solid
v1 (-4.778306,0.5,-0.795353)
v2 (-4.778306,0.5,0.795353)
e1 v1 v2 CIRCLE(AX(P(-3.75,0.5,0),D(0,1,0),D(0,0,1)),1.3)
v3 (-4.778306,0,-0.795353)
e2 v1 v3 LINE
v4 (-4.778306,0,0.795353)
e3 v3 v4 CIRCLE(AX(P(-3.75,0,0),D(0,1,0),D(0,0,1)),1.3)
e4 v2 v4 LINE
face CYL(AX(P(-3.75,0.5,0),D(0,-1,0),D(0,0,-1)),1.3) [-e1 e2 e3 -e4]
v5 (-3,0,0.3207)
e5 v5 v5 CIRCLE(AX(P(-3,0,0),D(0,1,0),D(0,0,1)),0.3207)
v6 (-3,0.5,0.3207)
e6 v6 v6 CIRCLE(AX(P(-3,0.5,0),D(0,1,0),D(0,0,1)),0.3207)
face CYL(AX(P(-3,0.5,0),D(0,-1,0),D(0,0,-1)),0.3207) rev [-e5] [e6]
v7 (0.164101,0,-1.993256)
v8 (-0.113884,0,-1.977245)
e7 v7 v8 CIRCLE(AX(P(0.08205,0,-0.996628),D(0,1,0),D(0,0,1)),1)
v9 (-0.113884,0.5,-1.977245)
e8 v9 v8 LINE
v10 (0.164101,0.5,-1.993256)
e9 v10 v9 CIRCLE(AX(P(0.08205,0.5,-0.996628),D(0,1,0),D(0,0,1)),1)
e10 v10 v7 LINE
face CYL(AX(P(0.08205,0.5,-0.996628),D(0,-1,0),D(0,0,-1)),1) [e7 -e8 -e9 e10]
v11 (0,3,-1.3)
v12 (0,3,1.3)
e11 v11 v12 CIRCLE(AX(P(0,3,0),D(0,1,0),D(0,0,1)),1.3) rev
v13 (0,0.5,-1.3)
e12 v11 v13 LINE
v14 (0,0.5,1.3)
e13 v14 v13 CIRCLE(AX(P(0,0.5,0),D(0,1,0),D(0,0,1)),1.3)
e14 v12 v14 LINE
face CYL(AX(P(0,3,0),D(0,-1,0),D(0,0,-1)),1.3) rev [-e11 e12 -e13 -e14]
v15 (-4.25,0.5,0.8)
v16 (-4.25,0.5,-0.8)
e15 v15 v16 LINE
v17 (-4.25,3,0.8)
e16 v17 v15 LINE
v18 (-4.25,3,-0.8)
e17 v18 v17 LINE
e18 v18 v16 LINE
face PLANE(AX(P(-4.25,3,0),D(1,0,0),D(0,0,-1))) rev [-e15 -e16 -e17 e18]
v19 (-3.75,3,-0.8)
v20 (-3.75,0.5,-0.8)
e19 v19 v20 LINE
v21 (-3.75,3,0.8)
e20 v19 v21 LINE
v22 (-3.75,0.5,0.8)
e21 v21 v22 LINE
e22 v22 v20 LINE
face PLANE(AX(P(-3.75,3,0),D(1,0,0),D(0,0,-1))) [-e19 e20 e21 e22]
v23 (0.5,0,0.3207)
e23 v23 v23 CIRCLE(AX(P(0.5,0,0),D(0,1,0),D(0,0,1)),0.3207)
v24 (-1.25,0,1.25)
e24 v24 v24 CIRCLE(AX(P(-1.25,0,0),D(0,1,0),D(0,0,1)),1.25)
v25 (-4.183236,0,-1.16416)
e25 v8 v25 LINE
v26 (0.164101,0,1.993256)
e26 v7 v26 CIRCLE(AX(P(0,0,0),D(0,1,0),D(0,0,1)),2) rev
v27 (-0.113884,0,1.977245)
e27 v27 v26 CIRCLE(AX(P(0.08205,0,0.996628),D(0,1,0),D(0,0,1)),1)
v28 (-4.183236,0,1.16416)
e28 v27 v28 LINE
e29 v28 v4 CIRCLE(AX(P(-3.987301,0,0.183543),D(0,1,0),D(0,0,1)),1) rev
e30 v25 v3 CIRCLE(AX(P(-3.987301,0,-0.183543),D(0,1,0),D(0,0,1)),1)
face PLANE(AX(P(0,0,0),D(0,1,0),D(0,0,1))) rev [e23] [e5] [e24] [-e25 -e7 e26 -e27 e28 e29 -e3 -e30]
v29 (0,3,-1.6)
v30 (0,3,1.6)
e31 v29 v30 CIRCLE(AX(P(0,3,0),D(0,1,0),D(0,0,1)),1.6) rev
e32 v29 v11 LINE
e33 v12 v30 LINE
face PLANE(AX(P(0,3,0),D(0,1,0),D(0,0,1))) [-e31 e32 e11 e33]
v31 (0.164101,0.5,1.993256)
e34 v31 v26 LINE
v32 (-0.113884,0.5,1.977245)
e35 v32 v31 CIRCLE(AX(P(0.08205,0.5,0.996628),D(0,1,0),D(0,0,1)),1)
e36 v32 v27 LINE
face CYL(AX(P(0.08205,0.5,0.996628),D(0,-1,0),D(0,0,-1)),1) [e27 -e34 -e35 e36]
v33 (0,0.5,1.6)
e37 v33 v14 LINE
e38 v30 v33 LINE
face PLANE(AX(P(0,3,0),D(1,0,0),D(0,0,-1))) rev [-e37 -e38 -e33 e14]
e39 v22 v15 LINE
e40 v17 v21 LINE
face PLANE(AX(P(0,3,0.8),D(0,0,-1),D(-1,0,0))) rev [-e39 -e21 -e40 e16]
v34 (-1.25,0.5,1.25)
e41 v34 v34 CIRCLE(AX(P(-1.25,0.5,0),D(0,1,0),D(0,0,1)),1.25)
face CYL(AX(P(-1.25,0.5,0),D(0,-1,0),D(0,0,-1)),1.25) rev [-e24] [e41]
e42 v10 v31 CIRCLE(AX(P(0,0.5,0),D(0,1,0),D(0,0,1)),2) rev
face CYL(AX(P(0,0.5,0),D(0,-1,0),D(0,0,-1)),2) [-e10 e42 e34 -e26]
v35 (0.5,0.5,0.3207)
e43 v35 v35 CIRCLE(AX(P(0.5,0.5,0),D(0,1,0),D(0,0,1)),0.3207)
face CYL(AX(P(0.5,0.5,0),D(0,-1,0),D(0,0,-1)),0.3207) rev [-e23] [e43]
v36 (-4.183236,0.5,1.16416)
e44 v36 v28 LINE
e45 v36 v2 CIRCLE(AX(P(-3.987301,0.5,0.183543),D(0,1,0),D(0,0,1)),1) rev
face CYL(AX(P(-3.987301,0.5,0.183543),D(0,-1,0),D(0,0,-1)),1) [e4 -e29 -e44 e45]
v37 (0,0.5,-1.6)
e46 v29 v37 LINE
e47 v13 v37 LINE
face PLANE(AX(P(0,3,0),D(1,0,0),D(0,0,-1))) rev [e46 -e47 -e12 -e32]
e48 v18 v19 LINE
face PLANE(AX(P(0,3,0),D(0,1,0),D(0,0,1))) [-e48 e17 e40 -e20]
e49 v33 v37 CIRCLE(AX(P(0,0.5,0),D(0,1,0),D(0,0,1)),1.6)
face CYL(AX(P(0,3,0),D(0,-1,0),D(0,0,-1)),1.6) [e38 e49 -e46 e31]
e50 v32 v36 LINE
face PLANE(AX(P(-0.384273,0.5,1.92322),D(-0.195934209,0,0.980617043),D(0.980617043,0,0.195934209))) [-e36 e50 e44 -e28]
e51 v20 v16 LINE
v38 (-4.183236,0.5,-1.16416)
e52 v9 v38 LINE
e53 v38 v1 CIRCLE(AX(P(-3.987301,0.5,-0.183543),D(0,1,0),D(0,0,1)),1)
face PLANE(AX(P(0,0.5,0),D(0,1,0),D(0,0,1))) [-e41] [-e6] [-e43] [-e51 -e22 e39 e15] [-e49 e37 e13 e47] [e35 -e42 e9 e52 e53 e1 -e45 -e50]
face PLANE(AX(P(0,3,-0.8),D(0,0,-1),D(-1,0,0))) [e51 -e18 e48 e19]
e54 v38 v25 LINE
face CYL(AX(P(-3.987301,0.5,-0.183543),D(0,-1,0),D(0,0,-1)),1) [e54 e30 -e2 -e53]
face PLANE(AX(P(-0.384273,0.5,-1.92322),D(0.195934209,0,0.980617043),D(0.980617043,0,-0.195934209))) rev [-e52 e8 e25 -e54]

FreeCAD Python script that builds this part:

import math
import FreeCAD as App
import Part
import Sketcher
from FreeCAD import Vector
Q = App.Units.Quantity

doc = App.newDocument("Part")
body = doc.addObject("PartDesign::Body", "Body")

sketch1 = body.newObject("Sketcher::SketchObject", "Sketch")
sketch1.AttachmentSupport = (doc.getObject("XZ_Plane"), [""])
sketch1.MapMode = "FlatFace"
sketch1.addGeometry(Part.ArcOfCircle(Part.Circle(Vector(0.08, -1, 0), Vector(0, 0, 1), 1), math.radians(-101.3), math.radians(-85.29)), False)
sketch1.addGeometry(Part.LineSegment(Vector(-0.11, -1.98, 0), Vector(-1.25, -1.75, 0)), False)
sketch1.addGeometry(Part.LineSegment(Vector(-1.25, -1.75, 0), Vector(-4.18, -1.16, 0)), False)
sketch1.addGeometry(Part.ArcOfCircle(Part.Circle(Vector(-3.99, -0.18, 0), Vector(0, 0, 1), 1), math.radians(-142), math.radians(-101)), False)
sketch1.addGeometry(Part.ArcOfCircle(Part.Circle(Vector(-3.75, 0, 0), Vector(0, 0, 1), 1.3), math.radians(142), math.radians(218)), False)
sketch1.addGeometry(Part.ArcOfCircle(Part.Circle(Vector(-3.99, 0.18, 0), Vector(0, 0, 1), 1), math.radians(101), math.radians(142)), False)
sketch1.addGeometry(Part.LineSegment(Vector(-4.18, 1.16, 0), Vector(-1.25, 1.75, 0)), False)
sketch1.addGeometry(Part.LineSegment(Vector(-1.25, 1.75, 0), Vector(-0.11, 1.98, 0)), False)
sketch1.addGeometry(Part.ArcOfCircle(Part.Circle(Vector(0.08, 1, 0), Vector(0, 0, 1), 1), math.radians(85.29), math.radians(101.3)), False)
sketch1.addGeometry(Part.ArcOfCircle(Part.Circle(Vector(0, 0, 0), Vector(0, 0, 1), 2), math.radians(-85), math.radians(85)), False)
sketch1.addGeometry(Part.ArcOfCircle(Part.Circle(Vector(-1.25, 0, 0), Vector(0, 0, 1), 1.25), math.radians(-90), math.radians(0)), False)
sketch1.addGeometry(Part.ArcOfCircle(Part.Circle(Vector(-1.25, 0, 0), Vector(0, 0, 1), 1.25), math.radians(0), math.radians(90)), False)
sketch1.addGeometry(Part.ArcOfCircle(Part.Circle(Vector(-1.25, 0, 0), Vector(0, 0, 1), 1.25), math.radians(90), math.radians(270)), False)
sketch1.addGeometry(Part.Circle(Vector(0.5, 0, 0), Vector(0, 0, 1), 0.32), False)
sketch1.addGeometry(Part.Circle(Vector(-3, 0, 0), Vector(0, 0, 1), 0.32), False)
sketch1.addConstraint(Sketcher.Constraint("Tangent", 0, 1, 1, 1))
sketch1.addConstraint(Sketcher.Constraint("Coincident", 1, 2, 2, 1))
sketch1.addConstraint(Sketcher.Constraint("Tangent", 2, 2, 3, 2))
sketch1.addConstraint(Sketcher.Constraint("Tangent", 3, 1, 4, 2))
sketch1.addConstraint(Sketcher.Constraint("Tangent", 4, 1, 5, 2))
sketch1.addConstraint(Sketcher.Constraint("Tangent", 5, 1, 6, 1))
sketch1.addConstraint(Sketcher.Constraint("Coincident", 6, 2, 7, 1))
sketch1.addConstraint(Sketcher.Constraint("Tangent", 7, 2, 8, 2))
sketch1.addConstraint(Sketcher.Constraint("Tangent", 8, 1, 9, 2))
sketch1.addConstraint(Sketcher.Constraint("Tangent", 9, 1, 0, 2))
sketch1.addConstraint(Sketcher.Constraint("Tangent", 10, 2, 11, 1))
sketch1.addConstraint(Sketcher.Constraint("Tangent", 11, 2, 12, 1))
sketch1.addConstraint(Sketcher.Constraint("Tangent", 12, 2, 10, 1))
sketch1.addConstraint(Sketcher.Constraint("Coincident", 9, 3, -1, 1))
sketch1.addConstraint(Sketcher.Constraint("Coincident", 10, 2, -1, 1))
sketch1.addConstraint(Sketcher.Constraint("Equal", 0, 3))
sketch1.addConstraint(Sketcher.Constraint("Equal", 3, 5))
sketch1.addConstraint(Sketcher.Constraint("Equal", 5, 8))
sketch1.addConstraint(Sketcher.Constraint("Equal", 13, 14))
sketch1.addConstraint(Sketcher.Constraint("Symmetric", 3, 3, 5, 3, -1))
sketch1.addConstraint(Sketcher.Constraint("Symmetric", 1, 2, 6, 2, -1))
sketch1.addConstraint(Sketcher.Constraint("Symmetric", 11, 2, 12, 2, -1))
sketch1.addConstraint(Sketcher.Constraint("PointOnObject", 13, 3, -1))
sketch1.addConstraint(Sketcher.Constraint("PointOnObject", 14, 3, -1))
sketch1.addConstraint(Sketcher.Constraint("Parallel", 1, 2))
sketch1.addConstraint(Sketcher.Constraint("Parallel", 6, 7))
sketch1.addConstraint(Sketcher.Constraint("Vertical", 12, 3, 1, 2))
sketch1.addConstraint(Sketcher.Constraint("Vertical", 6, 2, 11, 2))
sketch1.addConstraint(Sketcher.Constraint("Radius", 0, Q("1 mm")))
sketch1.addConstraint(Sketcher.Constraint("Radius", 9, Q("2 mm")))
sketch1.addConstraint(Sketcher.Constraint("Radius", 4, Q("1.3 mm")))
sketch1.addConstraint(Sketcher.Constraint("Radius", 10, Q("1.25 mm")))
sketch1.addConstraint(Sketcher.Constraint("DistanceX", 14, 3, -1, 1, Q("3 mm")))
sketch1.addConstraint(Sketcher.Constraint("Diameter", 13, Q("0.6414 mm")))
sketch1.addConstraint(Sketcher.Constraint("DistanceX", -1, 1, 13, 3, Q("0.5 mm")))
sketch1.addConstraint(Sketcher.Constraint("DistanceX", 4, 3, 10, 3, Q("2.5 mm")))
sketch1.addConstraint(Sketcher.Constraint("DistanceX", 3, 3, -1, 1, Q("3.987301 mm")))
sketch1.addConstraint(Sketcher.Constraint("DistanceX", -1, 1, 8, 1, Q("0.164101 mm")))
pad1 = body.newObject("PartDesign::Pad", "Pad")
pad1.Profile = sketch1
pad1.Length = 0.5
pad1.Reversed = True

sketch2 = body.newObject("Sketcher::SketchObject", "Sketch001")
sketch2.AttachmentSupport = (doc.getObject("XZ_Plane"), [""])
sketch2.MapMode = "FlatFace"
sketch2.addGeometry(Part.LineSegment(Vector(-4.25, -0.8, 0), Vector(-4.25, 0.8, 0)), False)
sketch2.addGeometry(Part.LineSegment(Vector(-4.25, 0.8, 0), Vector(-3.75, 0.8, 0)), False)
sketch2.addGeometry(Part.LineSegment(Vector(-3.75, 0.8, 0), Vector(-3.75, -0.8, 0)), False)
sketch2.addGeometry(Part.LineSegment(Vector(-3.75, -0.8, 0), Vector(-4.25, -0.8, 0)), False)
sketch2.addGeometry(Part.LineSegment(Vector(0, -1.6, 0), Vector(0, -1.3, 0)), False)
sketch2.addGeometry(Part.ArcOfCircle(Part.Circle(Vector(0, 0, 0), Vector(0, 0, 1), 1.3), math.radians(-90), math.radians(90)), False)
sketch2.addGeometry(Part.LineSegment(Vector(0, 1.3, 0), Vector(0, 1.6, 0)), False)
sketch2.addGeometry(Part.ArcOfCircle(Part.Circle(Vector(0, 0, 0), Vector(0, 0, 1), 1.6), math.radians(-90), math.radians(90)), False)
sketch2.addConstraint(Sketcher.Constraint("Coincident", 0, 2, 1, 1))
sketch2.addConstraint(Sketcher.Constraint("Coincident", 1, 2, 2, 1))
sketch2.addConstraint(Sketcher.Constraint("Coincident", 2, 2, 3, 1))
sketch2.addConstraint(Sketcher.Constraint("Coincident", 3, 2, 0, 1))
sketch2.addConstraint(Sketcher.Constraint("Coincident", 4, 2, 5, 1))
sketch2.addConstraint(Sketcher.Constraint("Coincident", 5, 2, 6, 1))
sketch2.addConstraint(Sketcher.Constraint("Coincident", 6, 2, 7, 2))
sketch2.addConstraint(Sketcher.Constraint("Coincident", 7, 1, 4, 1))
sketch2.addConstraint(Sketcher.Constraint("Vertical", 0))
sketch2.addConstraint(Sketcher.Constraint("Horizontal", 1))
sketch2.addConstraint(Sketcher.Constraint("Vertical", 2))
sketch2.addConstraint(Sketcher.Constraint("Horizontal", 3))
sketch2.addConstraint(Sketcher.Constraint("Vertical", 4))
sketch2.addConstraint(Sketcher.Constraint("Vertical", 6))
sketch2.addConstraint(Sketcher.Constraint("Coincident", 5, 3, -1, 1))
sketch2.addConstraint(Sketcher.Constraint("Coincident", 7, 3, -1, 1))
sketch2.addConstraint(Sketcher.Constraint("PointOnObject", 4, 2, -2))
sketch2.addConstraint(Sketcher.Constraint("PointOnObject", 5, 2, -2))
sketch2.addConstraint(Sketcher.Constraint("Radius", 5, Q("1.3 mm")))
sketch2.addConstraint(Sketcher.Constraint("Radius", 7, Q("1.6 mm")))
sketch2.addConstraint(Sketcher.Constraint("DistanceX", 1, 1, 1, 2, Q("0.5 mm")))
sketch2.addConstraint(Sketcher.Constraint("DistanceY", 0, 1, 0, 2, Q("1.6 mm")))
sketch2.addConstraint(Sketcher.Constraint("DistanceY", -1, 1, 0, 2, Q("0.8 mm")))
sketch2.addConstraint(Sketcher.Constraint("DistanceX", 0, 2, -1, 1, Q("4.25 mm")))
pad2 = body.newObject("PartDesign::Pad", "Pad001")
pad2.Profile = sketch2
pad2.Length = 3
pad2.Reversed = True

doc.recompute()
